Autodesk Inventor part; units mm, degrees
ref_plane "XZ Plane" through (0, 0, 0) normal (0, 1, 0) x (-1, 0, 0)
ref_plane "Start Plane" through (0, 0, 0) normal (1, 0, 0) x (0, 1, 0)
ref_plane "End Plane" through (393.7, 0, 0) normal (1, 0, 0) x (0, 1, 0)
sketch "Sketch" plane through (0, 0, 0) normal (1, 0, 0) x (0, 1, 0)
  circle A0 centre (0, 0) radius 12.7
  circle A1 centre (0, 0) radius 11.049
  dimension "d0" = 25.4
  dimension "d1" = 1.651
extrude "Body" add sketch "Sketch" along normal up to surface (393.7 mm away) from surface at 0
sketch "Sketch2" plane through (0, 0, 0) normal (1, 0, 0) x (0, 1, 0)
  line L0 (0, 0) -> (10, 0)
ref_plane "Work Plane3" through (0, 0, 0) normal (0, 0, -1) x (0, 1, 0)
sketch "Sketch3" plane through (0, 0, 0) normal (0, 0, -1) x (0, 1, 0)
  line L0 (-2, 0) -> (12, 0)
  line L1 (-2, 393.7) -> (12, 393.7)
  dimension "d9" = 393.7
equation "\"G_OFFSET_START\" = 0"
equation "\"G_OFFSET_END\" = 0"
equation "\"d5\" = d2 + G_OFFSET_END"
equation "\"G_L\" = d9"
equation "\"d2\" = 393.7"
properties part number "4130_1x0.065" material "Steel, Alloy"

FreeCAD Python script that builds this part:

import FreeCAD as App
import Part
import Sketcher
from FreeCAD import Vector
Q = App.Units.Quantity

doc = App.newDocument("Part")
body = doc.addObject("PartDesign::Body", "Body")

sketch1 = body.newObject("Sketcher::SketchObject", "Sketch")
sketch1.AttachmentSupport = (doc.getObject("YZ_Plane"), [""])
sketch1.MapMode = "FlatFace"
sketch1.addGeometry([
    Part.Circle(Vector(0, 0, 0), Vector(0, 0, 1), 13),
    Part.Circle(Vector(0, 0, 0), Vector(0, 0, 1), 11),
], False)
sketch1.addConstraint([
    Sketcher.Constraint("Coincident", 0, 3, -1, 1),
    Sketcher.Constraint("Coincident", 1, 3, -1, 1),
    Sketcher.Constraint("Diameter", 0, Q("1 in")),
    Sketcher.Constraint("Diameter", 1, Q("0.87 in")),
])
pad1 = body.newObject("PartDesign::Pad", "Pad")
pad1.Profile = sketch1
pad1.Length = Q("15.5 in")

doc.recompute()
